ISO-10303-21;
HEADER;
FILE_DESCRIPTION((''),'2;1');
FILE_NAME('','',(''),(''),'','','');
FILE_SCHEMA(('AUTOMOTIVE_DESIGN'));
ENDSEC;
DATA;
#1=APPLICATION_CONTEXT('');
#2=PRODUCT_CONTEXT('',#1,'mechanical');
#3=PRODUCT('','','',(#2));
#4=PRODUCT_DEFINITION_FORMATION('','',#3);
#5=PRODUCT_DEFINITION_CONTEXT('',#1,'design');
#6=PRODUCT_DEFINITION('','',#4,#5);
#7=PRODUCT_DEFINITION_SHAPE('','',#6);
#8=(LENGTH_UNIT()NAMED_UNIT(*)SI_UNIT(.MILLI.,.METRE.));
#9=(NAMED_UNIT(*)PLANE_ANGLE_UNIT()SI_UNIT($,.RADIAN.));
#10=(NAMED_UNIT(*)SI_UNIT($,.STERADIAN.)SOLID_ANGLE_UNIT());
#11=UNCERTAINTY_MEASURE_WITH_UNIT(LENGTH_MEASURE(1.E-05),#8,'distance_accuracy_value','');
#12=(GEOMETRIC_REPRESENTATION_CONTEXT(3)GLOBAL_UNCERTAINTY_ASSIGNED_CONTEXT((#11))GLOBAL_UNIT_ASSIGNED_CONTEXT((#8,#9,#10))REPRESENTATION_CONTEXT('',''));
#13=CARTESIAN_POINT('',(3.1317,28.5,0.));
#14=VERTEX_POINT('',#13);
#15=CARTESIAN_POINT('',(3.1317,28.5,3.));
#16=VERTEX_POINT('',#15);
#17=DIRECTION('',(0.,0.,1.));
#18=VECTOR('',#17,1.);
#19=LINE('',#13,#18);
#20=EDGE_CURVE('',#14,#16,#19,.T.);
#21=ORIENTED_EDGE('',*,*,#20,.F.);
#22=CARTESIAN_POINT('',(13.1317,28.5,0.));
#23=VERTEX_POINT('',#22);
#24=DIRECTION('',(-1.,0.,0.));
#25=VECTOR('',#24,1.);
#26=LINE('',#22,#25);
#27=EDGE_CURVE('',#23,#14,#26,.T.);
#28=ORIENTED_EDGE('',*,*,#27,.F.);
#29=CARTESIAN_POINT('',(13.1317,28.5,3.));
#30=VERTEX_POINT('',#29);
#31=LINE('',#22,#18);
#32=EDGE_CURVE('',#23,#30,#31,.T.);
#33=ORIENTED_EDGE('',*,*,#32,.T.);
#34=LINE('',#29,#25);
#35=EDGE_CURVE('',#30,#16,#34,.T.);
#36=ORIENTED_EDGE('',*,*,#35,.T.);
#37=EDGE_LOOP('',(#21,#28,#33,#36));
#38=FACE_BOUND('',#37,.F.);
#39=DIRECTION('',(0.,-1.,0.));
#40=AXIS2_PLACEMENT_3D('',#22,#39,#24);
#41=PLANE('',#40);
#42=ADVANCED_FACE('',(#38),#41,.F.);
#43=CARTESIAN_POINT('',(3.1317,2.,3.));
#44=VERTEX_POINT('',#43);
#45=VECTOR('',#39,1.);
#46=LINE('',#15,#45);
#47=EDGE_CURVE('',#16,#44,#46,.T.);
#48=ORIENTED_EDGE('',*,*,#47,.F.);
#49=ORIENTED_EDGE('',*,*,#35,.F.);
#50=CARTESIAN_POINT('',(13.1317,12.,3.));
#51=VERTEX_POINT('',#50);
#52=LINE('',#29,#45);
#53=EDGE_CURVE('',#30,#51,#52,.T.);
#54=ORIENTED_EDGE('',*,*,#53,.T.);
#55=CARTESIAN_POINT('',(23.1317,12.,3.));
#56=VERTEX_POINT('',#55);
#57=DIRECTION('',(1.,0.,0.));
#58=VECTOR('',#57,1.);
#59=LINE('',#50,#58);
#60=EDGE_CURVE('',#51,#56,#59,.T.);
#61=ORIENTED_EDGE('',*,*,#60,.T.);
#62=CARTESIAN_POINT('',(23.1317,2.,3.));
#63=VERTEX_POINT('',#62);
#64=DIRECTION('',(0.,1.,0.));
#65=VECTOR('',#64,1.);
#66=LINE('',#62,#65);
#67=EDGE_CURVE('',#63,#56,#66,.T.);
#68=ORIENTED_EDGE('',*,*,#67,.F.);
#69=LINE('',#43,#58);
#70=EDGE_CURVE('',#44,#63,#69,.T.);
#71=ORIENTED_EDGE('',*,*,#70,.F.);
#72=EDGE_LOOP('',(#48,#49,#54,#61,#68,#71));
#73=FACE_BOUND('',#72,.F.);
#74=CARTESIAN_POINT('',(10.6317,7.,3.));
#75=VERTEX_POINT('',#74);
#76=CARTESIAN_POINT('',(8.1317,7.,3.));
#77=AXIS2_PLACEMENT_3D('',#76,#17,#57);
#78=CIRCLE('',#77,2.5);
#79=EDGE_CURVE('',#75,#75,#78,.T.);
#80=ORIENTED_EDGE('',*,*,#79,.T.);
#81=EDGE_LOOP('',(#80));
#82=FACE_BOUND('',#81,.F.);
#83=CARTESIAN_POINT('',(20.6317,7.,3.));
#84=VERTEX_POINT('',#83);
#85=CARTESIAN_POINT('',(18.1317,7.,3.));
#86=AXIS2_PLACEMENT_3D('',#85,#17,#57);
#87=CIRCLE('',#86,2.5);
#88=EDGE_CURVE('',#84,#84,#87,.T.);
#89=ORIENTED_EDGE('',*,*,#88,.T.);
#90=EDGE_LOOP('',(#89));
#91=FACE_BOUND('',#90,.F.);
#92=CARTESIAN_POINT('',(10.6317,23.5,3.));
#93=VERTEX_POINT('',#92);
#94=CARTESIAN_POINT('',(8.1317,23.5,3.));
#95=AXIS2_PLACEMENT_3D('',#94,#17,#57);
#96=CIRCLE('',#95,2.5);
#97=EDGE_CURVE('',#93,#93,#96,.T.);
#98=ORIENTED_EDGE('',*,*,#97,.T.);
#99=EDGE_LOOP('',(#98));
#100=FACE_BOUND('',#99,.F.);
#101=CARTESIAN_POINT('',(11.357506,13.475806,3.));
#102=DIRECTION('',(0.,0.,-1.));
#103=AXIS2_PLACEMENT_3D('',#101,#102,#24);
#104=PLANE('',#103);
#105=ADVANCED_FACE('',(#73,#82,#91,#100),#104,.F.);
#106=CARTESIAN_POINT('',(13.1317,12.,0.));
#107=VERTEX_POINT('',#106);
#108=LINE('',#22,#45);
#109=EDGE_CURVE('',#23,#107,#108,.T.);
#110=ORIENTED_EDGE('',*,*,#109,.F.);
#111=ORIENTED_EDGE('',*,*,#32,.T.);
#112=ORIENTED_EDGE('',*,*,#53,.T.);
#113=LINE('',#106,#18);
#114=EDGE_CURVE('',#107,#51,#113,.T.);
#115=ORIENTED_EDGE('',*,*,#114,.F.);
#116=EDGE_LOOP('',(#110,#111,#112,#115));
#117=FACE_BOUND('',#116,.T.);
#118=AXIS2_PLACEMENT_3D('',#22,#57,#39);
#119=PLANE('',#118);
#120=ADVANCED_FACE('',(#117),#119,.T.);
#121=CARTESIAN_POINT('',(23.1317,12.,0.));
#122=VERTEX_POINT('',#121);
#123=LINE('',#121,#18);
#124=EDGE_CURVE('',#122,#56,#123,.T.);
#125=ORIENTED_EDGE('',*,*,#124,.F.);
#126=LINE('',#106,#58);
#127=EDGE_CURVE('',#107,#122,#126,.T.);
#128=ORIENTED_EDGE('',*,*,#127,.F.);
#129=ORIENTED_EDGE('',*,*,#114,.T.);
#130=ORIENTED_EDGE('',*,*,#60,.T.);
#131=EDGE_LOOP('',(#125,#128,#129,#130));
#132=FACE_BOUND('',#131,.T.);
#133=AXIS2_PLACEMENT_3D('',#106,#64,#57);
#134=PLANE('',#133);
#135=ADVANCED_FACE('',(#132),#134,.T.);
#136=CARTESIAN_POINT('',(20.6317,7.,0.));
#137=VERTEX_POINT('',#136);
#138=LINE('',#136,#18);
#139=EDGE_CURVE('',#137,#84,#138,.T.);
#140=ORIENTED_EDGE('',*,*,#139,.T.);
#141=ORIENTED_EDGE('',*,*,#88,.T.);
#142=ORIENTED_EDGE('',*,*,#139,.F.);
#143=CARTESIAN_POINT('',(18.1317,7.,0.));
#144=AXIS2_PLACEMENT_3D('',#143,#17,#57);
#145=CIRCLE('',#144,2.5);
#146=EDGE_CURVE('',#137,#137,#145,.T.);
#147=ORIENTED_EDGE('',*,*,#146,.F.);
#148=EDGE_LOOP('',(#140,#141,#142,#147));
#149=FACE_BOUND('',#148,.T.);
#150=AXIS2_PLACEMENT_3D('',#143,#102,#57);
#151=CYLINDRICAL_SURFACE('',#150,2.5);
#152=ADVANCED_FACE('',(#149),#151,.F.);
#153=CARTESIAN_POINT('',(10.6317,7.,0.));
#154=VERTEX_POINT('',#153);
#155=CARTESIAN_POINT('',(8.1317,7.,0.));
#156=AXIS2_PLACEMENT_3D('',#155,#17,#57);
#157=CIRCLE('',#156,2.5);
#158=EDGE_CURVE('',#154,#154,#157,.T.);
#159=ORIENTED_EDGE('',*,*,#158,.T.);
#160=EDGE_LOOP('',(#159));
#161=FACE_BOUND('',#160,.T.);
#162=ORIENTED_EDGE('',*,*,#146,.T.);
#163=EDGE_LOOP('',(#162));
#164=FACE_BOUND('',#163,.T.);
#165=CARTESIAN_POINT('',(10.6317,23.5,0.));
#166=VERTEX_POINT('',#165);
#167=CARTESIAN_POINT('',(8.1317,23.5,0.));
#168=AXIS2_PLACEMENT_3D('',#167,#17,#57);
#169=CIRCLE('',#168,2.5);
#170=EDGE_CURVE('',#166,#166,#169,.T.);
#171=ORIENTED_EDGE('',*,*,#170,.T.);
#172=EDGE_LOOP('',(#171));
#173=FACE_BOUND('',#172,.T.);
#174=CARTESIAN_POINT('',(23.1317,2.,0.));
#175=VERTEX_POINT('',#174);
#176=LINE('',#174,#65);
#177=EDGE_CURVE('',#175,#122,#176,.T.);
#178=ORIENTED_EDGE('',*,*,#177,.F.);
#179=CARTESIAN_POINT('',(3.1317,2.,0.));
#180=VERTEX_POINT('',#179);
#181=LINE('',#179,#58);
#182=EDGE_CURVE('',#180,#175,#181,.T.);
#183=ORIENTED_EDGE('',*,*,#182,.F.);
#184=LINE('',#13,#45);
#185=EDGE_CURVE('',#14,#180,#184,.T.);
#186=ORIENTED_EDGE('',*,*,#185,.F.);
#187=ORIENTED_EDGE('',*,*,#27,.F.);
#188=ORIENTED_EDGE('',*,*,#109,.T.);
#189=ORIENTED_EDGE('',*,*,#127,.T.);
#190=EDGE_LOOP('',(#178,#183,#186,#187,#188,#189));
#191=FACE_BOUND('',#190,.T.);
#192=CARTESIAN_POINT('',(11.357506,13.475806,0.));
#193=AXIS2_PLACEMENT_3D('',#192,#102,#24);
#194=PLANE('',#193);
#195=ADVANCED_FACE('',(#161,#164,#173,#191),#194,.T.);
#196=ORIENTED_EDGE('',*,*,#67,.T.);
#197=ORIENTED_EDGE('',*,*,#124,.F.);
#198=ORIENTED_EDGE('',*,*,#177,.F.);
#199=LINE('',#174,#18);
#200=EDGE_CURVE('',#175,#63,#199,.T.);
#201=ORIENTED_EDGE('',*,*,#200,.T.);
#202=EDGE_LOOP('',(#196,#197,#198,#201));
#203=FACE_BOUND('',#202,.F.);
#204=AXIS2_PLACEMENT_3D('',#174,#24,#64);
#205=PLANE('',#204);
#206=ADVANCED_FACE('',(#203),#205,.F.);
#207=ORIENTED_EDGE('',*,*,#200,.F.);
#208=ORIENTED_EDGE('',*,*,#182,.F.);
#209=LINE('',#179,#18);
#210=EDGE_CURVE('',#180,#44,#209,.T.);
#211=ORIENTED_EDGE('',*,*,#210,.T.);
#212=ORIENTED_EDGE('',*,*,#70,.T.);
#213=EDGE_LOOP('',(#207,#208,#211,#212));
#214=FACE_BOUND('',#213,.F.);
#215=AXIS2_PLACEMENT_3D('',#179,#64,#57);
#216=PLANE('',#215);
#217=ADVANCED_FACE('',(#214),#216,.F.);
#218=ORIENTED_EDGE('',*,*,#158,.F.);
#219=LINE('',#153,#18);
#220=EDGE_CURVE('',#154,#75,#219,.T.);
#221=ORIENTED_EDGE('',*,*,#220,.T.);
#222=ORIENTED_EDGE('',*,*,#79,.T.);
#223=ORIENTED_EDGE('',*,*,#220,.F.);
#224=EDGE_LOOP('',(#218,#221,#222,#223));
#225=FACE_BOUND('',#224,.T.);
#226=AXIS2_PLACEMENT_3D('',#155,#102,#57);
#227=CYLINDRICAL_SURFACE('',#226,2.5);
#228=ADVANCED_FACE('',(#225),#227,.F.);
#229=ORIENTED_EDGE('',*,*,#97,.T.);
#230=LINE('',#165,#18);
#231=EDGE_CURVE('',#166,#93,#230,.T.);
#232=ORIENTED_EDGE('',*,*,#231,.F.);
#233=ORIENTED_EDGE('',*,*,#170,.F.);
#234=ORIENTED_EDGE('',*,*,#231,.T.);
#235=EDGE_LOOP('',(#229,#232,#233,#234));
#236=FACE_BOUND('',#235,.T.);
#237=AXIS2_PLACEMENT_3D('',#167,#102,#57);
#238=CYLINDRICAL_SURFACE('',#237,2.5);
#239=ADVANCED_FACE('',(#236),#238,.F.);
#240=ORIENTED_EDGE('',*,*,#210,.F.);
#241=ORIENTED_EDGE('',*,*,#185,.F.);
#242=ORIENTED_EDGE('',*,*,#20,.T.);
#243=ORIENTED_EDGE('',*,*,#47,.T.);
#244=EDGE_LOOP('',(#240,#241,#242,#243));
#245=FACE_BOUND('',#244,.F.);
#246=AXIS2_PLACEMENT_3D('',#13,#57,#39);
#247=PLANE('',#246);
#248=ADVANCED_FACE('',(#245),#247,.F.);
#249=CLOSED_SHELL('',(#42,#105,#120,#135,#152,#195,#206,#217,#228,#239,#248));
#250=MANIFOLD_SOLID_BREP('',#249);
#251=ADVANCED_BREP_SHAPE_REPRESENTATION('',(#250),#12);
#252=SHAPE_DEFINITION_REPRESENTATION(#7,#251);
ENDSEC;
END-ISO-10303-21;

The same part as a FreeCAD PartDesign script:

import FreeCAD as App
import Part
import Sketcher
from FreeCAD import Vector


def add_polygon(sketch, points):
    """Adds a closed chain of lines whose ends are joined by coincident constraints."""
    first, n = sketch.GeometryCount, len(points)
    for a, b in zip(points, points[1:] + points[:1]):
        sketch.addGeometry(Part.LineSegment(App.Vector(*a, 0), App.Vector(*b, 0)), False)
    for i in range(n):
        sketch.addConstraint(Sketcher.Constraint("Coincident", first + i, 2, first + (i + 1) % n, 1))

doc = App.newDocument("Part")
body = doc.addObject("PartDesign::Body", "Body")

sketch1 = doc.addObject("Sketcher::SketchObject", "Sketch")
body.addObject(sketch1)
sketch1.AttachmentSupport = (doc.XY_Plane, [""])
sketch1.MapMode = "FlatFace"
add_polygon(sketch1, [(13.1317, 12), (13.1317, 28.5), (3.1317, 28.5), (3.1317, 2), (23.1317, 2), (23.1317, 12)])
sketch1.addGeometry(Part.Circle(Vector(8.1317, 7, 0), Vector(0, 0, 1), 2.5), False)
sketch1.addGeometry(Part.Circle(Vector(18.1317, 7, 0), Vector(0, 0, 1), 2.5), False)
sketch1.addGeometry(Part.Circle(Vector(8.1317, 23.5, 0), Vector(0, 0, 1), 2.5), False)
sketch1.addConstraint([
    Sketcher.Constraint("Vertical", 0),
    Sketcher.Constraint("Horizontal", 1),
    Sketcher.Constraint("Vertical", 2),
    Sketcher.Constraint("Horizontal", 3),
    Sketcher.Constraint("Vertical", 4),
    Sketcher.Constraint("Horizontal", 5),
    Sketcher.Constraint("Equal", 6, 7),
    Sketcher.Constraint("Equal", 7, 8),
    Sketcher.Constraint("Horizontal", 6, 3, 7, 3),
    Sketcher.Constraint("Vertical", 6, 3, 8, 3),
    Sketcher.Constraint("Equal", 1, 5),
    Sketcher.Constraint("Equal", 5, 4),
    Sketcher.Constraint("Diameter", 6, 5.0),
    Sketcher.Constraint("DistanceX", 1, 2, 1, 1, 10.0),
    Sketcher.Constraint("DistanceY", 0, 1, 0, 2, 16.5),
    Sketcher.Constraint("DistanceY", -1, 1, 6, 3, 7.0),
    Sketcher.Constraint("DistanceY", -1, 1, 2, 2, 2.0),
    Sketcher.Constraint("DistanceX", 6, 3, 7, 3, 10.0),
    Sketcher.Constraint("DistanceX", 8, 3, 0, 2, 5.0),
    Sketcher.Constraint("DistanceY", 8, 3, 0, 2, 5.0),
    Sketcher.Constraint("DistanceX", -1, 1, 6, 3, 8.1317),
])
pad1 = doc.addObject("PartDesign::Pad", "Pad")
body.addObject(pad1)
pad1.Profile = sketch1
pad1.Length = 3

doc.recompute()
